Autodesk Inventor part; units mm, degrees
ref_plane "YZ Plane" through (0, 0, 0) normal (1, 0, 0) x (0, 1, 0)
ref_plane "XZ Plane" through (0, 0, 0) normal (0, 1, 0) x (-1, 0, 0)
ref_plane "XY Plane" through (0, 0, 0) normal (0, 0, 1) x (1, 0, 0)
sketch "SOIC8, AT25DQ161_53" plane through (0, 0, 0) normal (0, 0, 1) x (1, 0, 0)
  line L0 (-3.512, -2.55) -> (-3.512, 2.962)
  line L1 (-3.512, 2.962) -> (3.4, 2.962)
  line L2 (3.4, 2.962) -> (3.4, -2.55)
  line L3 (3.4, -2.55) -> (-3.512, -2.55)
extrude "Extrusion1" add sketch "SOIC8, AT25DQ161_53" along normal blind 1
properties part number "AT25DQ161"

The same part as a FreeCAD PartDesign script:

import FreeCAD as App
import Part
import Sketcher
Q = App.Units.Quantity

doc = App.newDocument("Part")
params = doc.addObject("Spreadsheet::Sheet", "Params")
for row, (alias, value) in enumerate([
    ("pad1_length", "1 mm"),
], start=1):
    params.set(f"A{row}", alias)
    params.set(f"B{row}", "=" + value)
    params.setAlias(f"B{row}", alias)

body = doc.addObject("PartDesign::Body", "Body")

# Sketch on XY plane
sketch1 = body.newObject("Sketcher::SketchObject", "Sketch")
sketch1.AttachmentSupport = (doc.getObject("XY_Plane"), [""])
sketch1.MapMode = "FlatFace"
sketch1.addGeometry([
    Part.LineSegment(App.Vector(-4, 3, 0), App.Vector(-4, -3, 0)),
    Part.LineSegment(App.Vector(-4, -3, 0), App.Vector(3, -3, 0)),
    Part.LineSegment(App.Vector(3, -3, 0), App.Vector(3, 3, 0)),
    Part.LineSegment(App.Vector(3, 3, 0), App.Vector(-4, 3, 0)),
], False)
sketch1.addConstraint([
    Sketcher.Constraint("Coincident", 0, 2, 1, 1),
    Sketcher.Constraint("Coincident", 1, 2, 2, 1),
    Sketcher.Constraint("Coincident", 2, 2, 3, 1),
    Sketcher.Constraint("Coincident", 3, 2, 0, 1),
    Sketcher.Constraint("Vertical", 0),
    Sketcher.Constraint("Horizontal", 1),
    Sketcher.Constraint("Vertical", 2),
    Sketcher.Constraint("Horizontal", 3),
    Sketcher.Constraint("DistanceX", -1, 1, 1, 2, Q("3.4 mm")),
    Sketcher.Constraint("DistanceX", 1, 1, 1, 2, Q("6.912 mm")),
    Sketcher.Constraint("DistanceY", 0, 2, 0, 1, Q("5.512 mm")),
    Sketcher.Constraint("DistanceY", 0, 2, -1, 1, Q("2.55 mm")),
])
pad1 = body.newObject("PartDesign::Pad", "Pad")
pad1.Profile = sketch1
pad1.setExpression("Length", "Params.pad1_length")

doc.recompute()
